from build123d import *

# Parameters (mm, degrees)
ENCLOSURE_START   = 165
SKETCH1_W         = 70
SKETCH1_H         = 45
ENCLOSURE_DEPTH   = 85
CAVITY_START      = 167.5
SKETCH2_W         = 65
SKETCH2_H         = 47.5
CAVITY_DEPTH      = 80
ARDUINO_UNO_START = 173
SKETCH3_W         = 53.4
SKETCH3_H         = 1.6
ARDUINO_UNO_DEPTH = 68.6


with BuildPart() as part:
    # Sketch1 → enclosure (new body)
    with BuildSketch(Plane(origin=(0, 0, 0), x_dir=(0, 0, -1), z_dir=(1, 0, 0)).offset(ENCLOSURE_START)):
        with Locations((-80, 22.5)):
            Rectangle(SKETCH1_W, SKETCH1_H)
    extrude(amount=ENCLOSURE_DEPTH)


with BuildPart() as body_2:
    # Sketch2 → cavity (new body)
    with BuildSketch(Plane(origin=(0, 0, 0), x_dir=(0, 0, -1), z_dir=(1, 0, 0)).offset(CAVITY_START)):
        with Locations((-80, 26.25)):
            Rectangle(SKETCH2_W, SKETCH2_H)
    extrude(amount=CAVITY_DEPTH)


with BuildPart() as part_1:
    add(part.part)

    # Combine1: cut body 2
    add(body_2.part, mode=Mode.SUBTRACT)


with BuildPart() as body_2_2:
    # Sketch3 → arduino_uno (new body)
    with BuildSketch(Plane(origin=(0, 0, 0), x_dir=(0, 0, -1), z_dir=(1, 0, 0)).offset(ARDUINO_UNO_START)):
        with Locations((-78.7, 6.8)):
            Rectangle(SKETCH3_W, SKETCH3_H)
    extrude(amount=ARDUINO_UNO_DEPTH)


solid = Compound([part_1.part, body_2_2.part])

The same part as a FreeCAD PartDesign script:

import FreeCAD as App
import Part
import Sketcher

V = App.Vector
Q = App.Units.Quantity


def add_polygon(sketch, points):
    """Adds a closed chain of lines whose ends are joined by coincident constraints."""
    first, n = sketch.GeometryCount, len(points)
    for a, b in zip(points, points[1:] + points[:1]):
        sketch.addGeometry(Part.LineSegment(App.Vector(*a, 0), App.Vector(*b, 0)), False)
    for i in range(n):
        sketch.addConstraint(Sketcher.Constraint("Coincident", first + i, 2, first + (i + 1) % n, 1))

doc = App.newDocument("Part")
body = doc.addObject("PartDesign::Body", "Body")

# Sketch on YZ plane
sketch1 = doc.addObject("Sketcher::SketchObject", "Sketch")
body.addObject(sketch1)
sketch1.AttachmentSupport = (doc.YZ_Plane, [""])
sketch1.MapMode = "FlatFace"
sketch1.AttachmentOffset = App.Placement(V(0, 0, 165), App.Rotation())
add_polygon(sketch1, [(45, 115), (0, 115), (0, 45), (45, 45)])  # lines 0-3
sketch1.addConstraint(Sketcher.Constraint("Horizontal", 0))
sketch1.addConstraint(Sketcher.Constraint("Vertical", 1))
sketch1.addConstraint(Sketcher.Constraint("Horizontal", 2))
sketch1.addConstraint(Sketcher.Constraint("Vertical", 3))
sketch1.addConstraint(Sketcher.Constraint("PointOnObject", 0, 2, -2))
sketch1.addConstraint(Sketcher.Constraint("DistanceX", 0, 2, 0, 1, Q("45 mm")))
sketch1.addConstraint(Sketcher.Constraint("DistanceY", 1, 2, 1, 1, Q("70 mm")))
sketch1.addConstraint(Sketcher.Constraint("DistanceY", -1, 1, 0, 2, Q("115 mm")))
pad1 = doc.addObject("PartDesign::Pad", "Pad")
body.addObject(pad1)
pad1.Profile = sketch1
pad1.Length = 85
body2 = doc.addObject("PartDesign::Body", "Body001")

# Sketch on YZ plane
sketch2 = doc.addObject("Sketcher::SketchObject", "Sketch001")
body2.addObject(sketch2)
sketch2.AttachmentSupport = (doc.getObject("YZ_Plane001"), [""])
sketch2.MapMode = "FlatFace"
sketch2.AttachmentOffset = App.Placement(V(0, 0, 167.5), App.Rotation())
add_polygon(sketch2, [(50, 112), (2, 112), (2, 48), (50, 48)])  # lines 0-3
sketch2.addConstraint(Sketcher.Constraint("Horizontal", 0))
sketch2.addConstraint(Sketcher.Constraint("Vertical", 1))
sketch2.addConstraint(Sketcher.Constraint("Horizontal", 2))
sketch2.addConstraint(Sketcher.Constraint("Vertical", 3))
sketch2.addConstraint(Sketcher.Constraint("DistanceY", 1, 2, 1, 1, Q("65 mm")))
sketch2.addConstraint(Sketcher.Constraint("DistanceX", 0, 2, 0, 1, Q("47.5 mm")))
sketch2.addConstraint(Sketcher.Constraint("DistanceX", -1, 1, 2, 2, Q("50 mm")))
sketch2.addConstraint(Sketcher.Constraint("DistanceY", -1, 1, 0, 2, Q("112.5 mm")))
pad2 = doc.addObject("PartDesign::Pad", "Pad001")
body2.addObject(pad2)
pad2.Profile = sketch2
pad2.Length = 80
doc.recompute()

boolean = doc.addObject("PartDesign::Boolean", "Boolean")
body.addObject(boolean)
boolean.Type = "Cut"
boolean.addObjects([body2])
body3 = doc.addObject("PartDesign::Body", "Body002")

# Sketch on YZ plane
sketch3 = doc.addObject("Sketcher::SketchObject", "Sketch002")
body3.addObject(sketch3)
sketch3.AttachmentSupport = (doc.getObject("YZ_Plane002"), [""])
sketch3.MapMode = "FlatFace"
sketch3.AttachmentOffset = App.Placement(V(0, 0, 173), App.Rotation())
add_polygon(sketch3, [(7.6, 105.4), (6, 105.4), (6, 52), (7.6, 52)])  # lines 0-3
sketch3.addConstraint(Sketcher.Constraint("Horizontal", 0))
sketch3.addConstraint(Sketcher.Constraint("Vertical", 1))
sketch3.addConstraint(Sketcher.Constraint("Horizontal", 2))
sketch3.addConstraint(Sketcher.Constraint("Vertical", 3))
sketch3.addConstraint(Sketcher.Constraint("DistanceX", 0, 2, 0, 1, Q("1.6 mm")))
sketch3.addConstraint(Sketcher.Constraint("DistanceY", 1, 2, 1, 1, Q("53.4 mm")))
sketch3.addConstraint(Sketcher.Constraint("DistanceX", -1, 1, 0, 2, Q("6 mm")))
sketch3.addConstraint(Sketcher.Constraint("DistanceY", -1, 1, 1, 2, Q("52 mm")))
pad3 = doc.addObject("PartDesign::Pad", "Pad002")
body3.addObject(pad3)
pad3.Profile = sketch3
pad3.Length = 68.6

doc.recompute()
